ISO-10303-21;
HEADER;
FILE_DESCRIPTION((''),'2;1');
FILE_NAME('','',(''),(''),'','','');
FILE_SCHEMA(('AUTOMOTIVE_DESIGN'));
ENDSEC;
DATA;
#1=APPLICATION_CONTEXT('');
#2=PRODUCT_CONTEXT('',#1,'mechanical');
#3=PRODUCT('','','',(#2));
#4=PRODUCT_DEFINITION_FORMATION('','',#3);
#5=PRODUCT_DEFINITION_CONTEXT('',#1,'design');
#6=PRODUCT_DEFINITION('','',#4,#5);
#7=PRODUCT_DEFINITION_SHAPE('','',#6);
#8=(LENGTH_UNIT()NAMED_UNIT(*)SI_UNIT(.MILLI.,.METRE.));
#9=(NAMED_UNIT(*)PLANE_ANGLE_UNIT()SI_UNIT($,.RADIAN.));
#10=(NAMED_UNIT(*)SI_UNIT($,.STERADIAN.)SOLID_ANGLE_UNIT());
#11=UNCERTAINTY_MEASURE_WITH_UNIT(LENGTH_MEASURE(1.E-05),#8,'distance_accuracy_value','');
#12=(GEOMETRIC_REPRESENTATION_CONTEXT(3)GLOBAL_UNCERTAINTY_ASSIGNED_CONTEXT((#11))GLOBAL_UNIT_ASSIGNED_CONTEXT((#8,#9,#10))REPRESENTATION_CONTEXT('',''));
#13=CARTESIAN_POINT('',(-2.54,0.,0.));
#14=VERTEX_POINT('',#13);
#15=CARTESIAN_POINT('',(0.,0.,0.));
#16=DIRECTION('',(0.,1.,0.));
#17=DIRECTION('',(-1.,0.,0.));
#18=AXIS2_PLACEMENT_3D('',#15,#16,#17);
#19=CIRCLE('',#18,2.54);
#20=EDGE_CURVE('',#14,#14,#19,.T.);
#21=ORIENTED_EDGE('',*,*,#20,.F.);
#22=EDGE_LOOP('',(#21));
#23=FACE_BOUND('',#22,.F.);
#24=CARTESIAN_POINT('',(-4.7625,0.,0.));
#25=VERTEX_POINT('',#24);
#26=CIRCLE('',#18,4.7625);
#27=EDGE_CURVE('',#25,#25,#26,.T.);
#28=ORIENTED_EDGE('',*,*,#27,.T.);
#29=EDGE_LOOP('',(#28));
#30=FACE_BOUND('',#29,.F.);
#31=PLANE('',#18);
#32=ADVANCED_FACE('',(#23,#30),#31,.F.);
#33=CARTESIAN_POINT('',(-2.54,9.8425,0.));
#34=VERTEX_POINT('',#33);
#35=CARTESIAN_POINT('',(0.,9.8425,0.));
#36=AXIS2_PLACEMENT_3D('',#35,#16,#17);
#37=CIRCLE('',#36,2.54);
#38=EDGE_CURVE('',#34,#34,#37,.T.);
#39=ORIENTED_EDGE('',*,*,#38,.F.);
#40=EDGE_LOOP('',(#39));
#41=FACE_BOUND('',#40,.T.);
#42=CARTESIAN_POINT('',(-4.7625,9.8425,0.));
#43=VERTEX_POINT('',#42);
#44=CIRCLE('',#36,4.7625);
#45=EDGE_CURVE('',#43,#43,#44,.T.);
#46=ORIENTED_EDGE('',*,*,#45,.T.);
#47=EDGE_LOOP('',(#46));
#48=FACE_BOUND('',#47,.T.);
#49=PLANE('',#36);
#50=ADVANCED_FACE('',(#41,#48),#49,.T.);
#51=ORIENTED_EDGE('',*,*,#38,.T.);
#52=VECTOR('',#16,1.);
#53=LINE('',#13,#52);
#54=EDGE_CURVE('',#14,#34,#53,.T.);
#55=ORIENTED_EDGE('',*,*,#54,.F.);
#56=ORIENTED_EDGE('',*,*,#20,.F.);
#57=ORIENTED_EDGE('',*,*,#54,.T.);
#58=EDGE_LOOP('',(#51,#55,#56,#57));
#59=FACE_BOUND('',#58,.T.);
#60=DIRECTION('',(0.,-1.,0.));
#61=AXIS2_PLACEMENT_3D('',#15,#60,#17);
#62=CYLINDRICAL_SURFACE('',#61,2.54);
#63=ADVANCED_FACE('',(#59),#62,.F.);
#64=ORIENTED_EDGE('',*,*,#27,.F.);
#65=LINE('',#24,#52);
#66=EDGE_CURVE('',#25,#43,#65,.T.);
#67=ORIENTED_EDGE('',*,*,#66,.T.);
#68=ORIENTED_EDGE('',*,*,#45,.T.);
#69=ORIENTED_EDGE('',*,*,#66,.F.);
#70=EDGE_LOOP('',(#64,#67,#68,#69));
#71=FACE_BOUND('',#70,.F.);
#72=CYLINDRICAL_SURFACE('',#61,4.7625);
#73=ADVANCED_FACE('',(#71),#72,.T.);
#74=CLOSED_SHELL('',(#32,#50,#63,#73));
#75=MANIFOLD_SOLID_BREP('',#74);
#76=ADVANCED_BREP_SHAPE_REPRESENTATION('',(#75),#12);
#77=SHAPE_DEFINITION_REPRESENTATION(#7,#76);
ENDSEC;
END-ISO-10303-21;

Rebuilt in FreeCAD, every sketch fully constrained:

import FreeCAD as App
import Part
import Sketcher

V = App.Vector
Q = App.Units.Quantity

doc = App.newDocument("Part")
params = doc.addObject("Spreadsheet::Sheet", "Params")
for row, (alias, value) in enumerate([
    ("sketch1_diameter", "0.2 in"),
    ("sketch1_diameter2", "0.375 in"),
    ("pad1_length", "0.3875 in"),
], start=1):
    params.set(f"A{row}", alias)
    params.set(f"B{row}", "=" + value)
    params.setAlias(f"B{row}", alias)

body = doc.addObject("PartDesign::Body", "Body")

sketch1 = body.newObject("Sketcher::SketchObject", "Sketch")
sketch1.AttachmentSupport = (doc.getObject("XZ_Plane"), [""])
sketch1.MapMode = "FlatFace"
sketch1.addGeometry([
    Part.Circle(V(0, 0, 0), V(0, 0, 1), 4.8),
    Part.Circle(V(0, 0, 0), V(0, 0, 1), 2.5),
], False)
sketch1.addConstraint([
    Sketcher.Constraint("Coincident", 0, 3, -1, 1),
    Sketcher.Constraint("Coincident", 1, 3, -1, 1),
    Sketcher.Constraint("Diameter", 1, Q("0.2 in")),
    Sketcher.Constraint("Diameter", 0, Q("0.375 in")),
])
sketch1.setExpression("Constraints[2]", "Params.sketch1_diameter")
sketch1.setExpression("Constraints[3]", "Params.sketch1_diameter2")
pad1 = body.newObject("PartDesign::Pad", "Pad")
pad1.Profile = sketch1
pad1.setExpression("Length", "Params.pad1_length")
pad1.Reversed = True

doc.recompute()
